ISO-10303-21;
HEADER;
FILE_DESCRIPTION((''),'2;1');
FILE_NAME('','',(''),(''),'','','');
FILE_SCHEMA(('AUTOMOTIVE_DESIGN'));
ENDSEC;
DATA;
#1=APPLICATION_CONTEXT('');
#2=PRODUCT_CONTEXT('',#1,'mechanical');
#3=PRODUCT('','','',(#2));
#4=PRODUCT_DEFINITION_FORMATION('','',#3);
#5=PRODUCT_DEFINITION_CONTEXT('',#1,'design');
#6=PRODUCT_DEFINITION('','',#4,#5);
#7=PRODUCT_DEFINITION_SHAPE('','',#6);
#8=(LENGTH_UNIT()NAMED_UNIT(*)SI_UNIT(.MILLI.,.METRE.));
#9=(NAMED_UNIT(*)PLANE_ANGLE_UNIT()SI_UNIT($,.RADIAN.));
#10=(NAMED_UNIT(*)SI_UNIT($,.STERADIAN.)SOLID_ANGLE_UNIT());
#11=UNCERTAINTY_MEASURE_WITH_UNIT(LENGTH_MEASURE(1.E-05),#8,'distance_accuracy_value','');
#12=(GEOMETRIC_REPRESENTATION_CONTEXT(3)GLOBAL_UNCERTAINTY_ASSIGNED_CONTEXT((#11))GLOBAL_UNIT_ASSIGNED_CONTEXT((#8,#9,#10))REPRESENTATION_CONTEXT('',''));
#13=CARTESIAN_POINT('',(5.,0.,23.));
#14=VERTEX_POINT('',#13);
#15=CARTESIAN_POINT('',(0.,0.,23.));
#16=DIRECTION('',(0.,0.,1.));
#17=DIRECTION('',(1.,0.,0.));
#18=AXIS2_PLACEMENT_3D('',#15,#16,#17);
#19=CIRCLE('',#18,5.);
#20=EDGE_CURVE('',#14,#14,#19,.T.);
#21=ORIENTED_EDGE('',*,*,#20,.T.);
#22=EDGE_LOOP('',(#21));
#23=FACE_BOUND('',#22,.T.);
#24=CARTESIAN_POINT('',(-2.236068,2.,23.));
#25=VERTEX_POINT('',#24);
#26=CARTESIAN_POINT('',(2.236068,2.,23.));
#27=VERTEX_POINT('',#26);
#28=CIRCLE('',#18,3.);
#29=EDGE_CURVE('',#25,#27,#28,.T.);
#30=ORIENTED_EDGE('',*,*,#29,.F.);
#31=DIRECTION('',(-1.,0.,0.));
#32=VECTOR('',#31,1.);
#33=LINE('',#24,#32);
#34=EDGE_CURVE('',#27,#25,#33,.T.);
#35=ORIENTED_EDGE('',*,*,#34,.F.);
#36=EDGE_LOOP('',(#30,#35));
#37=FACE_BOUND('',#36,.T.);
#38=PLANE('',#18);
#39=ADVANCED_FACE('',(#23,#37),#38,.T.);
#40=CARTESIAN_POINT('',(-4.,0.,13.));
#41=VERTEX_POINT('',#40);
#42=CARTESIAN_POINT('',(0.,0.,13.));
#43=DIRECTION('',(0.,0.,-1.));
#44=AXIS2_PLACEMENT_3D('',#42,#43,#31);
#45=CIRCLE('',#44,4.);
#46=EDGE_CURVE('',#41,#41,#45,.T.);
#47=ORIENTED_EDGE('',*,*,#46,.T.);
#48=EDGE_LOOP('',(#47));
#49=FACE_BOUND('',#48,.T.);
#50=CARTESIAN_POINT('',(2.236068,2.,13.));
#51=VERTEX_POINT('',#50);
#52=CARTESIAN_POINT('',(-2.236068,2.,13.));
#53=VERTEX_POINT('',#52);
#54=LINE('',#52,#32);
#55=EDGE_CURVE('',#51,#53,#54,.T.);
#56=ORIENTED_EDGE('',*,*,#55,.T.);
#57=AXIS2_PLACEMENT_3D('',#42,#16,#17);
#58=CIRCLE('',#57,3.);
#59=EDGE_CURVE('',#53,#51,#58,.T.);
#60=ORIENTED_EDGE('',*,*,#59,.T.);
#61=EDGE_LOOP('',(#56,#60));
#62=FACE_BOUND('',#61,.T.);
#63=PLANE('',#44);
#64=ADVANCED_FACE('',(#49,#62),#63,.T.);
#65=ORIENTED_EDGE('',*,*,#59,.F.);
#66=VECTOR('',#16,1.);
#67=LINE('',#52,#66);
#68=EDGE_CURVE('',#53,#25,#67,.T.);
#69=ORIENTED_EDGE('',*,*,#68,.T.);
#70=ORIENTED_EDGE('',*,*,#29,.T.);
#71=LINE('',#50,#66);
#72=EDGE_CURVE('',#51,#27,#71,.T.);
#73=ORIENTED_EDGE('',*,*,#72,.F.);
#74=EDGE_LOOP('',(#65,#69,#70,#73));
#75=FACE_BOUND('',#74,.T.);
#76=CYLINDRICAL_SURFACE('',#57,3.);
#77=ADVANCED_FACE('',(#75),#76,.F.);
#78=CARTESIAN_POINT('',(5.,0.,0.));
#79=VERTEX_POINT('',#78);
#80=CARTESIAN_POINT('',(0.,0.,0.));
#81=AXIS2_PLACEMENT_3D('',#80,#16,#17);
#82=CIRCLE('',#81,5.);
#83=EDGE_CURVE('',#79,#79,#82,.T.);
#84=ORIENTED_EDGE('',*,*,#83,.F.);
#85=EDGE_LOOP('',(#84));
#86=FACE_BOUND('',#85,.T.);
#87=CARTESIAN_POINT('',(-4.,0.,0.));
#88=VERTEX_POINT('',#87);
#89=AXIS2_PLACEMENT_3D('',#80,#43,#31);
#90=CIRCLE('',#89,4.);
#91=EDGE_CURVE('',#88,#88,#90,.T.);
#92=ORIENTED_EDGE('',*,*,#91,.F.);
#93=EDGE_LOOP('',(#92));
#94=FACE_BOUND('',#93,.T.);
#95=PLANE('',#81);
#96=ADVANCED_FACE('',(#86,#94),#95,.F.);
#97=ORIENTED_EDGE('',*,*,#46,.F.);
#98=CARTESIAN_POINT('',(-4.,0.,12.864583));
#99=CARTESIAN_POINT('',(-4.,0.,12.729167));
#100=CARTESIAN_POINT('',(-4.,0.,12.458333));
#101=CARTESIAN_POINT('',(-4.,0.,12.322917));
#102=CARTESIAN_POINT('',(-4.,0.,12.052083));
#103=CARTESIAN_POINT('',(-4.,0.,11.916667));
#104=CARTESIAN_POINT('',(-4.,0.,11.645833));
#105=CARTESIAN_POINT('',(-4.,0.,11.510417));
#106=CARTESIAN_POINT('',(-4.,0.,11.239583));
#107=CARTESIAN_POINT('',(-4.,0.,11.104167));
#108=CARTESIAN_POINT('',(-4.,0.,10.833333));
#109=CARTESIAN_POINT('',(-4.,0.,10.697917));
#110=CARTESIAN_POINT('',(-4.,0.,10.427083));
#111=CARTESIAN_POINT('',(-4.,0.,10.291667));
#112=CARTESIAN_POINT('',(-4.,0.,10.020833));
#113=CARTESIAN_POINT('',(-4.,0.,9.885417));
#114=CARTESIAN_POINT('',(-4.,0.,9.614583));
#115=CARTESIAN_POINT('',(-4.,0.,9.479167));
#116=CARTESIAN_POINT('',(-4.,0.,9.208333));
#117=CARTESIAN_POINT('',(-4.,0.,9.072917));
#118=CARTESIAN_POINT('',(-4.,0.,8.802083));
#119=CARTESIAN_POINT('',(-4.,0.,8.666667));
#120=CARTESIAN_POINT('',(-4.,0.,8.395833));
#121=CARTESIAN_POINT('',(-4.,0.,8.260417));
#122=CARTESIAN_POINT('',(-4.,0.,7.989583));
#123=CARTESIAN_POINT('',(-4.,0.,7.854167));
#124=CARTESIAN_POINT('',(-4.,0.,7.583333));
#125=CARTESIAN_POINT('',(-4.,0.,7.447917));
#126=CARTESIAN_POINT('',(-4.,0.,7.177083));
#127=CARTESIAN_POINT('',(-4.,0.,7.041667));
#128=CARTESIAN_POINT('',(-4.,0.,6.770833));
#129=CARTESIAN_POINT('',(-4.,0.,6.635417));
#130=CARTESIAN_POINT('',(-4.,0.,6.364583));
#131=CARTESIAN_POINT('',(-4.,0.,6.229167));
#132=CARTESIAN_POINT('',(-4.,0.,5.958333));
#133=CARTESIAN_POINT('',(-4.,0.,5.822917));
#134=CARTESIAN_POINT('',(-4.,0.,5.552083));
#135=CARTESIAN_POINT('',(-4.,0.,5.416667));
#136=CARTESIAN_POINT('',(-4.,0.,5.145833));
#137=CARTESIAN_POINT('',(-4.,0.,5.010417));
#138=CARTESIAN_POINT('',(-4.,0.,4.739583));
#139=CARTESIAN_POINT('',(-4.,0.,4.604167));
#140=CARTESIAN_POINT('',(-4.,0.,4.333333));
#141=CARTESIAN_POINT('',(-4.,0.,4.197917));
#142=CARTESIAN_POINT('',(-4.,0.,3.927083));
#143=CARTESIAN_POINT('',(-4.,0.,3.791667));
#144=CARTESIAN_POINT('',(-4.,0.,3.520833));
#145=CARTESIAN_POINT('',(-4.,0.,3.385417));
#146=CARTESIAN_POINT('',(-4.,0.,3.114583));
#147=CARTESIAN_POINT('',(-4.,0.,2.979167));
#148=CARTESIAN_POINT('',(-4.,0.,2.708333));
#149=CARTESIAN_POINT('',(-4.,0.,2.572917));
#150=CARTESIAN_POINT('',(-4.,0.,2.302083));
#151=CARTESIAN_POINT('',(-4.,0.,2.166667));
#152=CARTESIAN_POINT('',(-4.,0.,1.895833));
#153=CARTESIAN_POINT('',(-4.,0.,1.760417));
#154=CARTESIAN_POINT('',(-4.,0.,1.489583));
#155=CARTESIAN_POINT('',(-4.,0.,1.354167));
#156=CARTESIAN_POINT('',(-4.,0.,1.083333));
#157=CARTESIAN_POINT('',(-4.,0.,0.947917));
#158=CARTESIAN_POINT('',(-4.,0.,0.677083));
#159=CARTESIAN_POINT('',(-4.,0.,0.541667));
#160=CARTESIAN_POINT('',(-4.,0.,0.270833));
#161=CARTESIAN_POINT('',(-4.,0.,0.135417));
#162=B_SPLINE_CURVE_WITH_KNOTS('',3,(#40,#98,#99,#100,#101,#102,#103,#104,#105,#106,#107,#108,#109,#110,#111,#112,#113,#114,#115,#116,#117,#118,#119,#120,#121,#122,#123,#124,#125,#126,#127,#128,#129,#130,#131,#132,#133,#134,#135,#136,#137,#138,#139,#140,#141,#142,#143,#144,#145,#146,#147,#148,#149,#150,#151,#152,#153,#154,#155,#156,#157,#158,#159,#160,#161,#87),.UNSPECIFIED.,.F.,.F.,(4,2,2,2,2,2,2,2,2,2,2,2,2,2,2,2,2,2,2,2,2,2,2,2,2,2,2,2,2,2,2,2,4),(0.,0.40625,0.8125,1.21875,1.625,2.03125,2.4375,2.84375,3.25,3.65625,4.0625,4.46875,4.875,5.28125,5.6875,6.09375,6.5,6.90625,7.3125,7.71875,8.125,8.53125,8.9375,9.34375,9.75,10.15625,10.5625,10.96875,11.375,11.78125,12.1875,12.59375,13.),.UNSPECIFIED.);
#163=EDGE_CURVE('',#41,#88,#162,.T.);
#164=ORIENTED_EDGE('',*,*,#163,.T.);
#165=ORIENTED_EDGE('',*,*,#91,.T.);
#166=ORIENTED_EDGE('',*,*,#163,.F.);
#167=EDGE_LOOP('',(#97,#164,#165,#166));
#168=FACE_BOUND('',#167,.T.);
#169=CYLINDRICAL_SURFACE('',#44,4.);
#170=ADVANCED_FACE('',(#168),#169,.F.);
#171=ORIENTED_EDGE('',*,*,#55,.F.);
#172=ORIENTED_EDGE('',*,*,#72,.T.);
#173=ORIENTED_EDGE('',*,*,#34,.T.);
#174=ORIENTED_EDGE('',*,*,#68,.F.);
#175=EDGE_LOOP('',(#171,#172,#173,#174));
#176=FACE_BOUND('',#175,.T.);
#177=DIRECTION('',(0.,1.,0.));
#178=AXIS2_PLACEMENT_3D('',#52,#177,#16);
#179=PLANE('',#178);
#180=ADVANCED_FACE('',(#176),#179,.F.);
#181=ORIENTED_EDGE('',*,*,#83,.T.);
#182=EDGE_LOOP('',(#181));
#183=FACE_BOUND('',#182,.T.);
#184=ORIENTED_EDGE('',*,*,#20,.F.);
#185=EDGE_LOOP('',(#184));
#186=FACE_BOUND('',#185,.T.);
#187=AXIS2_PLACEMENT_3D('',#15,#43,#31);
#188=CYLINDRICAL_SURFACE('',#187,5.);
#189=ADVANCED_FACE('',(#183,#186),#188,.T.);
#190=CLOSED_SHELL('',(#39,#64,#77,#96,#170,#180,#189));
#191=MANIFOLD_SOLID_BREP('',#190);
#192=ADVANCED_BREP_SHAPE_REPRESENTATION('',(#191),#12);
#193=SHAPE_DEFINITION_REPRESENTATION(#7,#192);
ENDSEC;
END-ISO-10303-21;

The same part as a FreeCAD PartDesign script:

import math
import FreeCAD as App
import Part
import Sketcher

doc = App.newDocument("Part")
body = doc.addObject("PartDesign::Body", "Body")

# Sketch on XY plane
sketch1 = body.newObject("Sketcher::SketchObject", "Sketch")
sketch1.AttachmentSupport = (doc.getObject("XY_Plane"), [""])
sketch1.MapMode = "FlatFace"
sketch1.addGeometry(Part.Circle(App.Vector(0, 0, 0), App.Vector(0, 0, 1), 5), False)
sketch1.addConstraint([
    Sketcher.Constraint("Coincident", 0, 3, -1, 1),
    Sketcher.Constraint("Diameter", 0, 10.0),
])
pad1 = body.newObject("PartDesign::Pad", "Pad")
pad1.Profile = sketch1
pad1.Length = 23

# Sketch on XY plane
sketch2 = body.newObject("Sketcher::SketchObject", "Sketch001")
sketch2.AttachmentSupport = (doc.getObject("XY_Plane"), [""])
sketch2.MapMode = "FlatFace"
sketch2.AttachmentOffset = App.Placement(App.Vector(0, 0, 23), App.Rotation())
sketch2.addGeometry([
    Part.LineSegment(App.Vector(2.2, 2, 0), App.Vector(-2.2, 2, 0)),
    Part.ArcOfCircle(Part.Circle(App.Vector(0, 0, 0), App.Vector(0, 0, 1), 3), math.radians(138), math.radians(402)),
], False)
sketch2.addConstraint([
    Sketcher.Constraint("Coincident", 0, 1, 1, 2),
    Sketcher.Constraint("Coincident", 1, 1, 0, 2),
    Sketcher.Constraint("Horizontal", 0),
    Sketcher.Constraint("Coincident", 1, 3, -1, 1),
    Sketcher.Constraint("Radius", 1, 3.0),
    Sketcher.Constraint("DistanceY", -1, 1, 0, 1, 2.0),
])
pocket1 = body.newObject("PartDesign::Pocket", "Pocket")
pocket1.Profile = sketch2
pocket1.Length = 10

# Sketch on XY plane
sketch3 = body.newObject("Sketcher::SketchObject", "Sketch002")
sketch3.AttachmentSupport = (doc.getObject("XY_Plane"), [""])
sketch3.MapMode = "FlatFace"
sketch3.addGeometry(Part.Circle(App.Vector(0, 0, 0), App.Vector(0, 0, 1), 4), False)
sketch3.addConstraint([
    Sketcher.Constraint("Coincident", 0, 3, -1, 1),
    Sketcher.Constraint("Diameter", 0, 8.0),
])
pocket2 = body.newObject("PartDesign::Pocket", "Pocket001")
pocket2.Profile = sketch3
pocket2.Length = 13
pocket2.Reversed = True

doc.recompute()
